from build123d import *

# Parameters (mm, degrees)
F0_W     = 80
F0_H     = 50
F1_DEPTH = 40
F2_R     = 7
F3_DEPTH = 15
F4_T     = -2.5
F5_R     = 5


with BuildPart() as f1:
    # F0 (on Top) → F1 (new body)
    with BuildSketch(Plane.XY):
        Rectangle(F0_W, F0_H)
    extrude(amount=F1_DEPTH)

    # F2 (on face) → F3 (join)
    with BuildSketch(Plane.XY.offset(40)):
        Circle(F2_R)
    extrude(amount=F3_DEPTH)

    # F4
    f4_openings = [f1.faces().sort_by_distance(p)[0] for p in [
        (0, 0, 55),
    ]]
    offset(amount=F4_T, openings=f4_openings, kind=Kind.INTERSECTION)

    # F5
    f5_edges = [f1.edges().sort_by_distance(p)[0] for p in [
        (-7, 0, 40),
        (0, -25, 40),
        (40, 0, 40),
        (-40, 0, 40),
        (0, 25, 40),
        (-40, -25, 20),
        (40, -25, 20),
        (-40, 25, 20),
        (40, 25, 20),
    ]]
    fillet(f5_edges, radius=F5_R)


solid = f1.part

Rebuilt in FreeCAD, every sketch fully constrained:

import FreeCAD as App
import Part
import Sketcher
from FreeCAD import Vector
Q = App.Units.Quantity


def edges_at(feature, points):
    """Names of the edges that pass closest to the given points."""
    edges = feature.Shape.Edges
    near = lambda p: min(range(len(edges)), key=lambda i: edges[i].distToShape(Part.Vertex(*p))[0])
    return sorted({f"Edge{near(p) + 1}" for p in points})


def faces_at(feature, points):
    """Names of the faces that lie closest to the given points."""
    faces = feature.Shape.Faces
    near = lambda p: min(range(len(faces)), key=lambda i: faces[i].distToShape(Part.Vertex(*p))[0])
    return sorted({f"Face{near(p) + 1}" for p in points})

doc = App.newDocument("Part")
body = doc.addObject("PartDesign::Body", "Body")

# Sketch on XY plane
sketch1 = body.newObject("Sketcher::SketchObject", "Sketch")
sketch1.AttachmentSupport = (doc.getObject("XY_Plane"), [""])
sketch1.MapMode = "FlatFace"
sketch1.addGeometry([
    Part.LineSegment(Vector(-40, 25, 0), Vector(-40, -25, 0)),
    Part.LineSegment(Vector(-40, -25, 0), Vector(40, -25, 0)),
    Part.LineSegment(Vector(40, -25, 0), Vector(40, 25, 0)),
    Part.LineSegment(Vector(40, 25, 0), Vector(-40, 25, 0)),
], False)
sketch1.addConstraint([
    Sketcher.Constraint("Coincident", 0, 2, 1, 1),
    Sketcher.Constraint("Coincident", 1, 2, 2, 1),
    Sketcher.Constraint("Coincident", 2, 2, 3, 1),
    Sketcher.Constraint("Coincident", 3, 2, 0, 1),
    Sketcher.Constraint("Vertical", 0),
    Sketcher.Constraint("Horizontal", 1),
    Sketcher.Constraint("Vertical", 2),
    Sketcher.Constraint("Horizontal", 3),
    Sketcher.Constraint("Symmetric", 0, 2, 2, 2, -1, 1),
    Sketcher.Constraint("DistanceX", 1, 1, 1, 2, Q("80 mm")),
    Sketcher.Constraint("DistanceY", 0, 2, 0, 1, Q("50 mm")),
])
pad1 = body.newObject("PartDesign::Pad", "Pad")
pad1.Profile = sketch1
pad1.Length = 40

# Sketch on XY plane
sketch2 = body.newObject("Sketcher::SketchObject", "Sketch001")
sketch2.AttachmentSupport = (doc.getObject("XY_Plane"), [""])
sketch2.MapMode = "FlatFace"
sketch2.AttachmentOffset = App.Placement(Vector(0, 0, 40), App.Rotation())
sketch2.addGeometry(Part.Circle(Vector(0, 0, 0), Vector(0, 0, 1), 7), False)
sketch2.addConstraint([
    Sketcher.Constraint("Coincident", 0, 3, -1, 1),
    Sketcher.Constraint("Diameter", 0, Q("14 mm")),
])
pad2 = body.newObject("PartDesign::Pad", "Pad001")
pad2.Profile = sketch2
pad2.Length = 15
doc.recompute()

thickness = body.newObject("PartDesign::Thickness", "Thickness")
thickness.Base = (pad2, faces_at(pad2, [(0, 0, 55)]))
thickness.Value = 2.5
thickness.Reversed = True
thickness.Join = "Intersection"
doc.recompute()

fillet = body.newObject("PartDesign::Fillet", "Fillet")
fillet.Base = (thickness, edges_at(thickness, [
    (-7, 0, 40),
    (0, -25, 40),
    (40, 0, 40),
    (-40, 0, 40),
    (0, 25, 40),
    (-40, -25, 20),
    (40, -25, 20),
    (-40, 25, 20),
    (40, 25, 20),
]))
fillet.Radius = 5

doc.recompute()
